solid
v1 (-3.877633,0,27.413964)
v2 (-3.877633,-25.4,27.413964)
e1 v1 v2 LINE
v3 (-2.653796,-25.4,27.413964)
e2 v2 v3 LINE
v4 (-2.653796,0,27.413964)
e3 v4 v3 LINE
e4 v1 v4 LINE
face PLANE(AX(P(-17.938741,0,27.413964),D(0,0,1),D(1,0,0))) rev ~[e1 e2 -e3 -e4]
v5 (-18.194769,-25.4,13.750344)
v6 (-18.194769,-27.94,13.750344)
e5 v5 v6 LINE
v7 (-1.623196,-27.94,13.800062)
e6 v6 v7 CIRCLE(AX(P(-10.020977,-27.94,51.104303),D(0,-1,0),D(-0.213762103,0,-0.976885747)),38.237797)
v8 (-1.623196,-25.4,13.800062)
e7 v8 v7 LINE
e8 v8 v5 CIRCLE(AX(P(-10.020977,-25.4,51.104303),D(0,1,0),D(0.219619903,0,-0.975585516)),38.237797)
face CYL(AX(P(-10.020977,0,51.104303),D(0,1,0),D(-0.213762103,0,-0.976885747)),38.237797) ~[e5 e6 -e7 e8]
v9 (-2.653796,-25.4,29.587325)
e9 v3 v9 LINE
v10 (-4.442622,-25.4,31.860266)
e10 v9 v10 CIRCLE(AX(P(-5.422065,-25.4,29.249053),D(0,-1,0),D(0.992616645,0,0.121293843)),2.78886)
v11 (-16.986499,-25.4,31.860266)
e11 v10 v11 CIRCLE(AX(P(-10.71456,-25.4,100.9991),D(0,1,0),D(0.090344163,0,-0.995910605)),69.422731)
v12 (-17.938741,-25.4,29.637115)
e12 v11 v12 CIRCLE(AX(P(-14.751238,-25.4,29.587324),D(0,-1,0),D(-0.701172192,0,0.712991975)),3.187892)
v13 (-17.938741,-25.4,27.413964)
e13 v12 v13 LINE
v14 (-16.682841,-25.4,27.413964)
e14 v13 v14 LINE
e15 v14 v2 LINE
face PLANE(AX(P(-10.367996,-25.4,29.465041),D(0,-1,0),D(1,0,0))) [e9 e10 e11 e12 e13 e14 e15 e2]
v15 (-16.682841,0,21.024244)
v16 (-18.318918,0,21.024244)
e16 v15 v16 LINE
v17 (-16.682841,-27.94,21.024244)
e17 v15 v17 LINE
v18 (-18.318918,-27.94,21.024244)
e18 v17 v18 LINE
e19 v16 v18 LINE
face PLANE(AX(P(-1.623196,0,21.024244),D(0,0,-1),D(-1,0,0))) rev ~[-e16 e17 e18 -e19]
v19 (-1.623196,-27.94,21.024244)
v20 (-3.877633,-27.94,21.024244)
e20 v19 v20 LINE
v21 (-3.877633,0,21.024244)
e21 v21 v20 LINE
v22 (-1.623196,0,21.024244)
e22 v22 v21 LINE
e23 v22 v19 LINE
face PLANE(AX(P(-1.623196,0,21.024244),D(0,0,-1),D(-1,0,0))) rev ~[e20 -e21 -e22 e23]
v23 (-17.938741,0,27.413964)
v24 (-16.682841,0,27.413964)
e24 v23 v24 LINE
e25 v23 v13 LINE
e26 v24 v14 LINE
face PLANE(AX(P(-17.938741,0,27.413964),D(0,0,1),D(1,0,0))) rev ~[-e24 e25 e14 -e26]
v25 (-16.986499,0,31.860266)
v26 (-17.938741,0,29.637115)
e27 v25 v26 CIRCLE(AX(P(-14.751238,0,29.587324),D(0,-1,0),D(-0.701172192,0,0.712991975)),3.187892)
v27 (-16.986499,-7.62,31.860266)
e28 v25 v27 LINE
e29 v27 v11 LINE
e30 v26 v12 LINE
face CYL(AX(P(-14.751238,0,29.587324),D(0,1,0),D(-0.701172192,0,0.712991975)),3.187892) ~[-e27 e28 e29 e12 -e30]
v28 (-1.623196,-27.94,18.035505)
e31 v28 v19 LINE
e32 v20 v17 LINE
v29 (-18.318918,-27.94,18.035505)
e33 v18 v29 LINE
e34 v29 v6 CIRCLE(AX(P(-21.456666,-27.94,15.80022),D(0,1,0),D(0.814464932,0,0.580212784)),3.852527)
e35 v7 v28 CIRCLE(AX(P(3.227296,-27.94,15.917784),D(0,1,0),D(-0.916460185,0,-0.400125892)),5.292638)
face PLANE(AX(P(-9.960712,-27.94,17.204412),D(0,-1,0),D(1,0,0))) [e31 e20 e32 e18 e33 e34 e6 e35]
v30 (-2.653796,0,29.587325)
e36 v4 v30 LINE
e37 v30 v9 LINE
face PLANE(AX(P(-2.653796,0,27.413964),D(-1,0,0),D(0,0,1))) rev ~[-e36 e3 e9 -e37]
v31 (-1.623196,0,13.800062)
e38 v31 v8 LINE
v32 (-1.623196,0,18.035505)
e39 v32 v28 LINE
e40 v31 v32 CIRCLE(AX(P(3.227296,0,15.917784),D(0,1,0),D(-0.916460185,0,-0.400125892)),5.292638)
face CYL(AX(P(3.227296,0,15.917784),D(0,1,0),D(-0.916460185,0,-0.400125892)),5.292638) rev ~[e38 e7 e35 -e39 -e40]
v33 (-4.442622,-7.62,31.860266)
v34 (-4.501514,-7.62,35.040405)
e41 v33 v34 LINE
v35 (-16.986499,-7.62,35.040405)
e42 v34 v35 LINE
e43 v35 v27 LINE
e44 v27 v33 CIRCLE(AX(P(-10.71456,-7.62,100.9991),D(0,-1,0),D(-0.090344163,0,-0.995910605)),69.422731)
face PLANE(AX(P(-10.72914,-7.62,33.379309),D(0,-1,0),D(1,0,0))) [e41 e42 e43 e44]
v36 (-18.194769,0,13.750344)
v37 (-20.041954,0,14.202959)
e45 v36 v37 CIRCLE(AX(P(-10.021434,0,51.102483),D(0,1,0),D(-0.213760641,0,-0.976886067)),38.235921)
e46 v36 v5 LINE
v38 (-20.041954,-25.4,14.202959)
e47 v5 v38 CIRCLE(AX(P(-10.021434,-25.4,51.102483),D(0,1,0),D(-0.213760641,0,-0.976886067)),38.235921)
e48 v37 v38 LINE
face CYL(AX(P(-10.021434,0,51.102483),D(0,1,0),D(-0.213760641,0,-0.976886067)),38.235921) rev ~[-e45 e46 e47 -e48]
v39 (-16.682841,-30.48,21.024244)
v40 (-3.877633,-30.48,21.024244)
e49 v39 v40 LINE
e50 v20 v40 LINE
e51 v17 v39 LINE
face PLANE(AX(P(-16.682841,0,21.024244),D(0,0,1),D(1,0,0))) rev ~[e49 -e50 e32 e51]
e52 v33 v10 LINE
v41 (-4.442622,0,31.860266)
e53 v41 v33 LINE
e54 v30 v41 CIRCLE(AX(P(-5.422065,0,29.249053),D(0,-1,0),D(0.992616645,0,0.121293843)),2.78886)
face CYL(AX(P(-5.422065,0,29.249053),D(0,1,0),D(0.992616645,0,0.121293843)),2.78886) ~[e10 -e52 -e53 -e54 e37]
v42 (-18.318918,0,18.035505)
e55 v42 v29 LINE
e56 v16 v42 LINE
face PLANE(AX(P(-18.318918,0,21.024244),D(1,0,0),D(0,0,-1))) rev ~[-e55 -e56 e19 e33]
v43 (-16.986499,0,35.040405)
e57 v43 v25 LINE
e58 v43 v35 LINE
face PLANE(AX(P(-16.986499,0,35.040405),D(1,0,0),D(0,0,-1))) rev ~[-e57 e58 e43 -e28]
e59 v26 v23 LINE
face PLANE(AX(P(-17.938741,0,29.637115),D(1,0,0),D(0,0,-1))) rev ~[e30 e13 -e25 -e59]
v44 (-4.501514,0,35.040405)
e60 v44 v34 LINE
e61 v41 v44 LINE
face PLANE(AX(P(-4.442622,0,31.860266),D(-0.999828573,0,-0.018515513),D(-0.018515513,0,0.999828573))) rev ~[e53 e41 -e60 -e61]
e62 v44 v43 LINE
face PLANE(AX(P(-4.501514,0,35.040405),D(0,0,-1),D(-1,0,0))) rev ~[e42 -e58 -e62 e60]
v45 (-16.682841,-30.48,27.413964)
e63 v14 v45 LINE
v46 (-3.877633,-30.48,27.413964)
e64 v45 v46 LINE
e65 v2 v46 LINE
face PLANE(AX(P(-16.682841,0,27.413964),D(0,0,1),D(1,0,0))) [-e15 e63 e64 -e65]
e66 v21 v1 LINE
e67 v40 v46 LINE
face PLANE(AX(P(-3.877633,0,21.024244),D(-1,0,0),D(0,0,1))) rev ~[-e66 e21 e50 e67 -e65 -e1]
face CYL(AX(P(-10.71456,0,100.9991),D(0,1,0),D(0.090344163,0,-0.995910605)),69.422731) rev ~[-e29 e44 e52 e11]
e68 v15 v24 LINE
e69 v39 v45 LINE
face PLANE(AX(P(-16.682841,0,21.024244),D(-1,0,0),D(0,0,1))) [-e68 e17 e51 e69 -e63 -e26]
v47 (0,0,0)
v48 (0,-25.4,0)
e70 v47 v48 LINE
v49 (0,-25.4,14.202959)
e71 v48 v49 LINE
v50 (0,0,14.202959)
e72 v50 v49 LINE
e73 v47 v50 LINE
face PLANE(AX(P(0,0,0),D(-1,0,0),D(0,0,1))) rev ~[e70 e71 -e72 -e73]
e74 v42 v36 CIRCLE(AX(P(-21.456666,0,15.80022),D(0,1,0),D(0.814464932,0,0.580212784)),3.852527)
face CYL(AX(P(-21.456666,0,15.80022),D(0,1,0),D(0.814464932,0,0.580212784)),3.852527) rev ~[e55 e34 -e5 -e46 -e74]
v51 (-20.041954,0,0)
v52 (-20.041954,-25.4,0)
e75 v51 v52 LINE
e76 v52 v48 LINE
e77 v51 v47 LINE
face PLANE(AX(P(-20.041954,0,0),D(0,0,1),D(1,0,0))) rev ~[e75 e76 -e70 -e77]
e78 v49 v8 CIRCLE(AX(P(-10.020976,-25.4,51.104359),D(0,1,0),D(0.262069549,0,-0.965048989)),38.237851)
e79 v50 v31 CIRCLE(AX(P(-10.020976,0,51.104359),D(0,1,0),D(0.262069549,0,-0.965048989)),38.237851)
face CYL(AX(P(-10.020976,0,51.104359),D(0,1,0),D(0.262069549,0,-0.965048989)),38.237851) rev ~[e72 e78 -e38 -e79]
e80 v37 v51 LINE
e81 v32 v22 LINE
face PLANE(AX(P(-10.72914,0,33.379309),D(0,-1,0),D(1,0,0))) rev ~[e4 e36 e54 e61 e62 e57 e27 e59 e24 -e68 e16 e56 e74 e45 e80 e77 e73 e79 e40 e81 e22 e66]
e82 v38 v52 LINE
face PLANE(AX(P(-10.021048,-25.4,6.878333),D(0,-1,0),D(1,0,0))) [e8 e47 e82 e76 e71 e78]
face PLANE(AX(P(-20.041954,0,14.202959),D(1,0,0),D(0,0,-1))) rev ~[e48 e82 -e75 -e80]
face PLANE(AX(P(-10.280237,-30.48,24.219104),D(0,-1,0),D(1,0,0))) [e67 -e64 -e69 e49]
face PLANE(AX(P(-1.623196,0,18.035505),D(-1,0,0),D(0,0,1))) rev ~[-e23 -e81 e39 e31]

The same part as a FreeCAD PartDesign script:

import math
import FreeCAD as App
import Part
import Sketcher
from FreeCAD import Vector
Q = App.Units.Quantity

doc = App.newDocument("Part")
body = doc.addObject("PartDesign::Body", "Body")

# Sketch on XZ plane
sketch1 = body.newObject("Sketcher::SketchObject", "Sketch")
sketch1.AttachmentSupport = (doc.getObject("XZ_Plane"), [""])
sketch1.MapMode = "FlatFace"
sketch1.addGeometry(Part.LineSegment(Vector(-20.041954, 0, 0), Vector(0, 0, 0)), False)
sketch1.addGeometry(Part.LineSegment(Vector(0, 0, 0), Vector(0, 14.202959, 0)), False)
sketch1.addGeometry(Part.ArcOfCircle(Part.Circle(Vector(-10.020976, 51.104359, 0), Vector(0, 0, 1), 38.237851), math.radians(-77.313311), math.radians(-74.807103)), False)
sketch1.addGeometry(Part.ArcOfCircle(Part.Circle(Vector(-10.020977, 51.104303, 0), Vector(0, 0, 1), 38.237797), math.radians(-102.342913), math.radians(-77.313291)), False)
sketch1.addGeometry(Part.ArcOfCircle(Part.Circle(Vector(-10.021434, 51.102483, 0), Vector(0, 0, 1), 38.235921), math.radians(-105.192974), math.radians(-102.342827)), False)
sketch1.addGeometry(Part.LineSegment(Vector(-20.041954, 14.202959, 0), Vector(-20.041954, 0, 0)), False)
sketch1.addConstraint(Sketcher.Constraint("Coincident", 0, 2, 1, 1))
sketch1.addConstraint(Sketcher.Constraint("Coincident", 1, 2, 2, 2))
sketch1.addConstraint(Sketcher.Constraint("Coincident", 2, 1, 3, 2))
sketch1.addConstraint(Sketcher.Constraint("Coincident", 3, 1, 4, 2))
sketch1.addConstraint(Sketcher.Constraint("Coincident", 4, 1, 5, 1))
sketch1.addConstraint(Sketcher.Constraint("Coincident", 5, 2, 0, 1))
sketch1.addConstraint(Sketcher.Constraint("Horizontal", 0))
sketch1.addConstraint(Sketcher.Constraint("Vertical", 1))
sketch1.addConstraint(Sketcher.Constraint("Vertical", 5))
sketch1.addConstraint(Sketcher.Constraint("Coincident", 0, 2, -1, 1))
sketch1.addConstraint(Sketcher.Constraint("Radius", 2, Q("38.237851 mm")))
sketch1.addConstraint(Sketcher.Constraint("Radius", 4, Q("38.235921 mm")))
sketch1.addConstraint(Sketcher.Constraint("Radius", 3, Q("38.237797 mm")))
sketch1.addConstraint(Sketcher.Constraint("DistanceY", 1, 1, 1, 2, Q("14.202959 mm")))
sketch1.addConstraint(Sketcher.Constraint("DistanceY", 5, 2, 5, 1, Q("14.202959 mm")))
sketch1.addConstraint(Sketcher.Constraint("DistanceY", 1, 2, 2, 3, Q("36.9014 mm")))
sketch1.addConstraint(Sketcher.Constraint("DistanceX", 0, 1, 0, 2, Q("20.041954 mm")))
sketch1.addConstraint(Sketcher.Constraint("DistanceY", -1, 1, 2, 1, Q("13.800062 mm")))
sketch1.addConstraint(Sketcher.Constraint("DistanceX", 3, 1, -1, 1, Q("18.194769 mm")))
sketch1.addConstraint(Sketcher.Constraint("DistanceY", 4, 3, 3, 3, Q("0.00182 mm")))
pad1 = body.newObject("PartDesign::Pad", "Pad")
pad1.Profile = sketch1
pad1.Length = Q("1 in")

# Sketch on XZ plane
sketch2 = body.newObject("Sketcher::SketchObject", "Sketch001")
sketch2.AttachmentSupport = (doc.getObject("XZ_Plane"), [""])
sketch2.MapMode = "FlatFace"
sketch2.addGeometry(Part.ArcOfCircle(Part.Circle(Vector(-10, 51.1, 0), Vector(0, 0, 1), 38.2), math.radians(-102), math.radians(-77)), False)
sketch2.addGeometry(Part.ArcOfCircle(Part.Circle(Vector(3.2, 15.9, 0), Vector(0, 0, 1), 5.3), math.radians(156), math.radians(204)), False)
sketch2.addGeometry(Part.LineSegment(Vector(-1.6, 18, 0), Vector(-1.6, 21, 0)), False)
sketch2.addGeometry(Part.LineSegment(Vector(-1.6, 21, 0), Vector(-18.3, 21, 0)), False)
sketch2.addGeometry(Part.LineSegment(Vector(-18.3, 21, 0), Vector(-18.3, 18, 0)), False)
sketch2.addGeometry(Part.ArcOfCircle(Part.Circle(Vector(-21.5, 15.8, 0), Vector(0, 0, 1), 3.9), math.radians(-32), math.radians(35)), False)
sketch2.addConstraint(Sketcher.Constraint("Coincident", 0, 2, 1, 2))
sketch2.addConstraint(Sketcher.Constraint("Coincident", 1, 1, 2, 1))
sketch2.addConstraint(Sketcher.Constraint("Coincident", 2, 2, 3, 1))
sketch2.addConstraint(Sketcher.Constraint("Coincident", 3, 2, 4, 1))
sketch2.addConstraint(Sketcher.Constraint("Coincident", 4, 2, 5, 2))
sketch2.addConstraint(Sketcher.Constraint("Coincident", 5, 1, 0, 1))
sketch2.addConstraint(Sketcher.Constraint("Vertical", 2))
sketch2.addConstraint(Sketcher.Constraint("Horizontal", 3))
sketch2.addConstraint(Sketcher.Constraint("Vertical", 4))
sketch2.addConstraint(Sketcher.Constraint("Horizontal", 1, 1, 4, 2))
sketch2.addConstraint(Sketcher.Constraint("Vertical", 0, 2, 1, 1))
sketch2.addConstraint(Sketcher.Constraint("Radius", 0, Q("38.237797 mm")))
sketch2.addConstraint(Sketcher.Constraint("Radius", 1, Q("5.292638 mm")))
sketch2.addConstraint(Sketcher.Constraint("Radius", 5, Q("3.852527 mm")))
sketch2.addConstraint(Sketcher.Constraint("DistanceX", 3, 2, 3, 1, Q("16.695722 mm")))
sketch2.addConstraint(Sketcher.Constraint("DistanceY", 2, 1, 2, 2, Q("2.988739 mm")))
sketch2.addConstraint(Sketcher.Constraint("DistanceY", 5, 1, 3, 2, Q("7.2739 mm")))
sketch2.addConstraint(Sketcher.Constraint("DistanceY", -1, 1, 5, 3, Q("15.80022 mm")))
sketch2.addConstraint(Sketcher.Constraint("DistanceY", -1, 1, 0, 2, Q("13.800062 mm")))
sketch2.addConstraint(Sketcher.Constraint("DistanceX", 3, 2, -1, 1, Q("18.318918 mm")))
sketch2.addConstraint(Sketcher.Constraint("DistanceX", 5, 1, -1, 1, Q("18.194769 mm")))
pad2 = body.newObject("PartDesign::Pad", "Pad001")
pad2.Profile = sketch2
pad2.Length = Q("1.1 in")

# Sketch on XZ plane
sketch3 = body.newObject("Sketcher::SketchObject", "Sketch002")
sketch3.AttachmentSupport = (doc.getObject("XZ_Plane"), [""])
sketch3.MapMode = "FlatFace"
sketch3.addGeometry(Part.LineSegment(Vector(-17, 27, 0), Vector(-17, 21, 0)), False)
sketch3.addGeometry(Part.LineSegment(Vector(-17, 21, 0), Vector(-4, 21, 0)), False)
sketch3.addGeometry(Part.LineSegment(Vector(-4, 21, 0), Vector(-4, 27, 0)), False)
sketch3.addGeometry(Part.LineSegment(Vector(-4, 27, 0), Vector(-17, 27, 0)), False)
sketch3.addConstraint(Sketcher.Constraint("Coincident", 0, 2, 1, 1))
sketch3.addConstraint(Sketcher.Constraint("Coincident", 1, 2, 2, 1))
sketch3.addConstraint(Sketcher.Constraint("Coincident", 2, 2, 3, 1))
sketch3.addConstraint(Sketcher.Constraint("Coincident", 3, 2, 0, 1))
sketch3.addConstraint(Sketcher.Constraint("Vertical", 0))
sketch3.addConstraint(Sketcher.Constraint("Horizontal", 1))
sketch3.addConstraint(Sketcher.Constraint("Vertical", 2))
sketch3.addConstraint(Sketcher.Constraint("Horizontal", 3))
sketch3.addConstraint(Sketcher.Constraint("DistanceY", 0, 2, 0, 1, Q("6.38972 mm")))
sketch3.addConstraint(Sketcher.Constraint("DistanceX", 1, 1, 1, 2, Q("12.805208 mm")))
sketch3.addConstraint(Sketcher.Constraint("DistanceX", 0, 2, -1, 1, Q("16.682841 mm")))
sketch3.addConstraint(Sketcher.Constraint("DistanceY", -1, 1, 0, 2, Q("21.024244 mm")))
pad3 = body.newObject("PartDesign::Pad", "Pad002")
pad3.Profile = sketch3
pad3.Length = Q("1.2 in")

# Sketch on XZ plane
sketch4 = body.newObject("Sketcher::SketchObject", "Sketch003")
sketch4.AttachmentSupport = (doc.getObject("XZ_Plane"), [""])
sketch4.MapMode = "FlatFace"
sketch4.addGeometry(Part.LineSegment(Vector(-2.7, 27.4, 0), Vector(-2.7, 29.6, 0)), False)
sketch4.addGeometry(Part.ArcOfCircle(Part.Circle(Vector(-5.4, 29.2, 0), Vector(0, 0, 1), 2.8), math.radians(7), math.radians(69)), False)
sketch4.addGeometry(Part.ArcOfCircle(Part.Circle(Vector(-10.7, 101, 0), Vector(0, 0, 1), 69.4), math.radians(-95.18), math.radians(-84.82)), False)
sketch4.addGeometry(Part.ArcOfCircle(Part.Circle(Vector(-14.8, 29.6, 0), Vector(0, 0, 1), 3.2), math.radians(135), math.radians(179)), False)
sketch4.addGeometry(Part.LineSegment(Vector(-17.9, 29.6, 0), Vector(-17.9, 27.4, 0)), False)
sketch4.addGeometry(Part.LineSegment(Vector(-17.9, 27.4, 0), Vector(-2.7, 27.4, 0)), False)
sketch4.addConstraint(Sketcher.Constraint("Coincident", 0, 2, 1, 1))
sketch4.addConstraint(Sketcher.Constraint("Coincident", 1, 2, 2, 2))
sketch4.addConstraint(Sketcher.Constraint("Coincident", 2, 1, 3, 1))
sketch4.addConstraint(Sketcher.Constraint("Coincident", 3, 2, 4, 1))
sketch4.addConstraint(Sketcher.Constraint("Coincident", 4, 2, 5, 1))
sketch4.addConstraint(Sketcher.Constraint("Coincident", 5, 2, 0, 1))
sketch4.addConstraint(Sketcher.Constraint("Vertical", 0))
sketch4.addConstraint(Sketcher.Constraint("Vertical", 4))
sketch4.addConstraint(Sketcher.Constraint("Horizontal", 5))
sketch4.addConstraint(Sketcher.Constraint("Horizontal", 3, 3, 0, 2))
sketch4.addConstraint(Sketcher.Constraint("Horizontal", 1, 2, 2, 1))
sketch4.addConstraint(Sketcher.Constraint("Radius", 1, Q("2.78886 mm")))
sketch4.addConstraint(Sketcher.Constraint("Radius", 2, Q("69.422731 mm")))
sketch4.addConstraint(Sketcher.Constraint("Radius", 3, Q("3.187892 mm")))
sketch4.addConstraint(Sketcher.Constraint("DistanceY", 0, 1, 0, 2, Q("2.173361 mm")))
sketch4.addConstraint(Sketcher.Constraint("DistanceY", 4, 2, 4, 1, Q("2.223151 mm")))
sketch4.addConstraint(Sketcher.Constraint("DistanceY", -1, 1, 2, 3, Q("100.9991 mm")))
sketch4.addConstraint(Sketcher.Constraint("DistanceX", 2, 1, -1, 1, Q("16.986499 mm")))
sketch4.addConstraint(Sketcher.Constraint("DistanceY", 4, 2, 2, 1, Q("4.446302 mm")))
sketch4.addConstraint(Sketcher.Constraint("DistanceX", 5, 1, 5, 2, Q("15.284945 mm")))
sketch4.addConstraint(Sketcher.Constraint("DistanceX", 2, 3, -1, 1, Q("10.71456 mm")))
pad4 = body.newObject("PartDesign::Pad", "Pad003")
pad4.Profile = sketch4
pad4.Length = Q("1 in")

# Sketch on XZ plane
sketch5 = body.newObject("Sketcher::SketchObject", "Sketch004")
sketch5.AttachmentSupport = (doc.getObject("XZ_Plane"), [""])
sketch5.MapMode = "FlatFace"
sketch5.addGeometry(Part.ArcOfCircle(Part.Circle(Vector(-10.7, 101, 0), Vector(0, 0, 1), 69.4), math.radians(-95.18), math.radians(-84.82)), False)
sketch5.addGeometry(Part.LineSegment(Vector(-4.4, 31.9, 0), Vector(-4.5, 35, 0)), False)
sketch5.addGeometry(Part.LineSegment(Vector(-4.5, 35, 0), Vector(-17, 35, 0)), False)
sketch5.addGeometry(Part.LineSegment(Vector(-17, 35, 0), Vector(-17, 31.9, 0)), False)
sketch5.addConstraint(Sketcher.Constraint("Coincident", 0, 2, 1, 1))
sketch5.addConstraint(Sketcher.Constraint("Coincident", 1, 2, 2, 1))
sketch5.addConstraint(Sketcher.Constraint("Coincident", 2, 2, 3, 1))
sketch5.addConstraint(Sketcher.Constraint("Coincident", 3, 2, 0, 1))
sketch5.addConstraint(Sketcher.Constraint("Horizontal", 2))
sketch5.addConstraint(Sketcher.Constraint("Vertical", 3))
sketch5.addConstraint(Sketcher.Constraint("Horizontal", 0, 2, 3, 2))
sketch5.addConstraint(Sketcher.Constraint("Radius", 0, Q("69.422731 mm")))
sketch5.addConstraint(Sketcher.Constraint("DistanceY", 3, 2, 3, 1, Q("3.180139 mm")))
sketch5.addConstraint(Sketcher.Constraint("DistanceY", -1, 1, 0, 3, Q("100.9991 mm")))
sketch5.addConstraint(Sketcher.Constraint("DistanceX", 2, 2, -1, 1, Q("16.986499 mm")))
sketch5.addConstraint(Sketcher.Constraint("DistanceX", 2, 2, 2, 1, Q("12.484985 mm")))
sketch5.addConstraint(Sketcher.Constraint("DistanceX", 0, 3, -1, 1, Q("10.71456 mm")))
pad5 = body.newObject("PartDesign::Pad", "Pad004")
pad5.Profile = sketch5
pad5.Length = Q("0.3 in")

doc.recompute()
